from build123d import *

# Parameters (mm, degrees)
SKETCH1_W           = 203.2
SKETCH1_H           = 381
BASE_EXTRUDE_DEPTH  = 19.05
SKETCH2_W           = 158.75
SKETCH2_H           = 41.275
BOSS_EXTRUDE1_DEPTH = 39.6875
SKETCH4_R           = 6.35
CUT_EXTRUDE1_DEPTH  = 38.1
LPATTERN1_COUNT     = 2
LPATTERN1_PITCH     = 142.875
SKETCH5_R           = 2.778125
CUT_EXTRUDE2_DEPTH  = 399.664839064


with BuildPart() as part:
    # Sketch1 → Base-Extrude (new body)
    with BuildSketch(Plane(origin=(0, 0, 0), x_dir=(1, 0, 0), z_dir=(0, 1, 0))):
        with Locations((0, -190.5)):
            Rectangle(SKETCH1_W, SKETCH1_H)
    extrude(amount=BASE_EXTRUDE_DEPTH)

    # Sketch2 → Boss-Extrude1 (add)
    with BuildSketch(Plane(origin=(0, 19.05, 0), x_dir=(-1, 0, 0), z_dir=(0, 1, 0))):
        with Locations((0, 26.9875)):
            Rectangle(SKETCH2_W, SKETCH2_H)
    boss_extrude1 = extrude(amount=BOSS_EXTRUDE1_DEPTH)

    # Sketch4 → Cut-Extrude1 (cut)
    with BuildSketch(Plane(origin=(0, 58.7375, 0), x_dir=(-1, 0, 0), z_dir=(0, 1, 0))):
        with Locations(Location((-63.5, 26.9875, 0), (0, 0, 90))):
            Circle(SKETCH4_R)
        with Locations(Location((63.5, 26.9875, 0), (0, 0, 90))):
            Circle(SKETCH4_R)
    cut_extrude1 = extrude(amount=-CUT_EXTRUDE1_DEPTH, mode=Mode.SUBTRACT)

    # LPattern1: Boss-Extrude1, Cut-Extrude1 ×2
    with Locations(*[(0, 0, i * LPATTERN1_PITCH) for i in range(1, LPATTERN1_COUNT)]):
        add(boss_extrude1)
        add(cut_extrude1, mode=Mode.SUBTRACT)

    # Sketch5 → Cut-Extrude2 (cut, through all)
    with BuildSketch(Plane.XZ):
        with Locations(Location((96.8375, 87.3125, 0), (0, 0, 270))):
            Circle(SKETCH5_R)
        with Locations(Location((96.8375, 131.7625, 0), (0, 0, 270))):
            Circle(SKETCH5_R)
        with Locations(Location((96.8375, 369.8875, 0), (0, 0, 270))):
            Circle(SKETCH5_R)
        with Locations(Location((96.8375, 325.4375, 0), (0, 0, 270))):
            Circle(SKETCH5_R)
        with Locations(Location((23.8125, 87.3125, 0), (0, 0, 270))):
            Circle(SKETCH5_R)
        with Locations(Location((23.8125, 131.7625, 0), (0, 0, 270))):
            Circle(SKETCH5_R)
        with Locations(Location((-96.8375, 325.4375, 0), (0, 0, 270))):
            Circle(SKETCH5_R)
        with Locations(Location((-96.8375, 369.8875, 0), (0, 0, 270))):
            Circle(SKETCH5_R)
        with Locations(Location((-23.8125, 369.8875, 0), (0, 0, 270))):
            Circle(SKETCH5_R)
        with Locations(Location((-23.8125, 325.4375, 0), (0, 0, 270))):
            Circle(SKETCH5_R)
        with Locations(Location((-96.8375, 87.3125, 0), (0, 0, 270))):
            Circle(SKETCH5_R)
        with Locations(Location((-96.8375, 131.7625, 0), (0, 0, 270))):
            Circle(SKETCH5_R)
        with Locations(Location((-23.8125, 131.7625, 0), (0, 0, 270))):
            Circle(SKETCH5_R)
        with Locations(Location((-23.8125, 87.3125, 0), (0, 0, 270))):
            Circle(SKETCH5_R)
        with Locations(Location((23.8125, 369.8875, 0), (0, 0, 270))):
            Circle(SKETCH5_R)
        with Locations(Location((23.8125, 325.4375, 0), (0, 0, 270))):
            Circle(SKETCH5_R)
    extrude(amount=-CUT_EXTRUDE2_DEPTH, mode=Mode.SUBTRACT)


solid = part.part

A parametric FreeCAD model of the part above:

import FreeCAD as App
import Part
import Sketcher

V = App.Vector
Q = App.Units.Quantity


def add_polygon(sketch, points):
    """Adds a closed chain of lines whose ends are joined by coincident constraints."""
    first, n = sketch.GeometryCount, len(points)
    for a, b in zip(points, points[1:] + points[:1]):
        sketch.addGeometry(Part.LineSegment(App.Vector(*a, 0), App.Vector(*b, 0)), False)
    for i in range(n):
        sketch.addConstraint(Sketcher.Constraint("Coincident", first + i, 2, first + (i + 1) % n, 1))

doc = App.newDocument("Part")
body = doc.addObject("PartDesign::Body", "Body")

# Sketch on XZ plane
sketch1 = body.newObject("Sketcher::SketchObject", "Sketch")
sketch1.AttachmentSupport = (doc.getObject("XZ_Plane"), [""])
sketch1.MapMode = "FlatFace"
add_polygon(sketch1, [(-101.6, 0), (-101.6, 381), (101.6, 381), (101.6, 0)])  # lines 0-3
sketch1.addConstraint(Sketcher.Constraint("Vertical", 0))
sketch1.addConstraint(Sketcher.Constraint("Horizontal", 1))
sketch1.addConstraint(Sketcher.Constraint("Vertical", 2))
sketch1.addConstraint(Sketcher.Constraint("Horizontal", 3))
sketch1.addConstraint(Sketcher.Constraint("Symmetric", 2, 2, 3, 2, -1, 1))
sketch1.addConstraint(Sketcher.Constraint("DistanceX", 1, 1, 1, 2, Q("8 in")))
sketch1.addConstraint(Sketcher.Constraint("DistanceY", 0, 1, 0, 2, Q("15 in")))
pad1 = body.newObject("PartDesign::Pad", "Pad")
pad1.Profile = sketch1
pad1.Length = Q("0.75 in")
pad1.Reversed = True

# Sketch on XZ plane
sketch2 = body.newObject("Sketcher::SketchObject", "Sketch001")
sketch2.AttachmentSupport = (doc.getObject("XZ_Plane"), [""])
sketch2.MapMode = "FlatFace"
sketch2.AttachmentOffset = App.Placement(V(0, 0, -0.75 * 25.4), App.Rotation())
add_polygon(sketch2, [(79.375, 47.625), (79.375, 6.35), (-79.375, 6.35), (-79.375, 47.625)])  # lines 0-3
sketch2.addConstraint(Sketcher.Constraint("Vertical", 0))
sketch2.addConstraint(Sketcher.Constraint("Horizontal", 1))
sketch2.addConstraint(Sketcher.Constraint("Vertical", 2))
sketch2.addConstraint(Sketcher.Constraint("Horizontal", 3))
sketch2.addConstraint(Sketcher.Constraint("DistanceX", 1, 2, 1, 1, Q("6.25 in")))
sketch2.addConstraint(Sketcher.Constraint("DistanceY", 0, 2, 0, 1, Q("1.625 in")))
sketch2.addConstraint(Sketcher.Constraint("DistanceY", -1, 1, 0, 2, Q("0.25 in")))
sketch2.addConstraint(Sketcher.Constraint("DistanceX", -1, 1, 0, 2, Q("3.125 in")))
pad2 = body.newObject("PartDesign::Pad", "Pad001")
pad2.Profile = sketch2
pad2.Length = Q("1.5625 in")
pad2.Reversed = True

# Sketch on XZ plane
sketch3 = body.newObject("Sketcher::SketchObject", "Sketch002")
sketch3.AttachmentSupport = (doc.getObject("XZ_Plane"), [""])
sketch3.MapMode = "FlatFace"
sketch3.AttachmentOffset = App.Placement(V(0, 0, -2.3125 * 25.4), App.Rotation())
sketch3.addGeometry(Part.Circle(V(63.5, 26.9875, 0), V(0, 0, 1), 6.35), False)
sketch3.addGeometry(Part.Circle(V(-63.5, 26.9875, 0), V(0, 0, 1), 6.35), False)
sketch3.addConstraint(Sketcher.Constraint("Equal", 0, 1))
sketch3.addConstraint(Sketcher.Constraint("Symmetric", 0, 3, 1, 3, -2))
sketch3.addConstraint(Sketcher.Constraint("Diameter", 0, Q("0.5 in")))
sketch3.addConstraint(Sketcher.Constraint("DistanceX", 1, 3, 0, 3, Q("5 in")))
sketch3.addConstraint(Sketcher.Constraint("DistanceY", -1, 1, 0, 3, Q("1.0625 in")))
pocket1 = body.newObject("PartDesign::Pocket", "Pocket")
pocket1.Profile = sketch3
pocket1.Length = Q("1.5 in")
pocket1.Reversed = True
doc.recompute()

linearpattern = body.newObject("PartDesign::LinearPattern", "LinearPattern")
linearpattern.Originals = [pad2, pocket1]
linearpattern.Direction = (doc.getObject("Z_Axis"), [""])
linearpattern.Mode = "offset"
linearpattern.Offset = Q("5.625 in")
linearpattern.Occurrences = 2
body.Tip = linearpattern

# Sketch on XZ plane
sketch4 = body.newObject("Sketcher::SketchObject", "Sketch003")
sketch4.AttachmentSupport = (doc.getObject("XZ_Plane"), [""])
sketch4.MapMode = "FlatFace"
sketch4.addGeometry(Part.Circle(V(96.8375, 87.3125, 0), V(0, 0, 1), 2.778125), False)
sketch4.addGeometry(Part.Circle(V(96.8375, 131.7625, 0), V(0, 0, 1), 2.778125), False)
sketch4.addGeometry(Part.Circle(V(96.8375, 369.8875, 0), V(0, 0, 1), 2.778125), False)
sketch4.addGeometry(Part.Circle(V(96.8375, 325.4375, 0), V(0, 0, 1), 2.778125), False)
sketch4.addGeometry(Part.Circle(V(23.8125, 87.3125, 0), V(0, 0, 1), 2.778125), False)
sketch4.addGeometry(Part.Circle(V(23.8125, 131.7625, 0), V(0, 0, 1), 2.778125), False)
sketch4.addGeometry(Part.Circle(V(-96.8375, 325.4375, 0), V(0, 0, 1), 2.778125), False)
sketch4.addGeometry(Part.Circle(V(-96.8375, 369.8875, 0), V(0, 0, 1), 2.778125), False)
sketch4.addGeometry(Part.Circle(V(-23.8125, 369.8875, 0), V(0, 0, 1), 2.778125), False)
sketch4.addGeometry(Part.Circle(V(-23.8125, 325.4375, 0), V(0, 0, 1), 2.778125), False)
sketch4.addGeometry(Part.Circle(V(-96.8375, 87.3125, 0), V(0, 0, 1), 2.778125), False)
sketch4.addGeometry(Part.Circle(V(-96.8375, 131.7625, 0), V(0, 0, 1), 2.778125), False)
sketch4.addGeometry(Part.Circle(V(-23.8125, 131.7625, 0), V(0, 0, 1), 2.778125), False)
sketch4.addGeometry(Part.Circle(V(-23.8125, 87.3125, 0), V(0, 0, 1), 2.778125), False)
sketch4.addGeometry(Part.Circle(V(23.8125, 369.8875, 0), V(0, 0, 1), 2.778125), False)
sketch4.addGeometry(Part.Circle(V(23.8125, 325.4375, 0), V(0, 0, 1), 2.778125), False)
sketch4.addConstraint(Sketcher.Constraint("Equal", 0, 1))
sketch4.addConstraint(Sketcher.Constraint("Equal", 1, 2))
sketch4.addConstraint(Sketcher.Constraint("Equal", 2, 3))
sketch4.addConstraint(Sketcher.Constraint("Equal", 3, 4))
sketch4.addConstraint(Sketcher.Constraint("Equal", 4, 5))
sketch4.addConstraint(Sketcher.Constraint("Equal", 5, 6))
sketch4.addConstraint(Sketcher.Constraint("Equal", 6, 7))
sketch4.addConstraint(Sketcher.Constraint("Equal", 7, 8))
sketch4.addConstraint(Sketcher.Constraint("Equal", 8, 9))
sketch4.addConstraint(Sketcher.Constraint("Equal", 9, 10))
sketch4.addConstraint(Sketcher.Constraint("Equal", 10, 11))
sketch4.addConstraint(Sketcher.Constraint("Equal", 11, 12))
sketch4.addConstraint(Sketcher.Constraint("Equal", 12, 13))
sketch4.addConstraint(Sketcher.Constraint("Equal", 13, 14))
sketch4.addConstraint(Sketcher.Constraint("Equal", 14, 15))
sketch4.addConstraint(Sketcher.Constraint("Symmetric", 3, 3, 6, 3, -2))
sketch4.addConstraint(Sketcher.Constraint("Symmetric", 2, 3, 7, 3, -2))
sketch4.addConstraint(Sketcher.Constraint("Symmetric", 0, 3, 10, 3, -2))
sketch4.addConstraint(Sketcher.Constraint("Symmetric", 1, 3, 11, 3, -2))
sketch4.addConstraint(Sketcher.Constraint("Symmetric", 5, 3, 12, 3, -2))
sketch4.addConstraint(Sketcher.Constraint("Symmetric", 4, 3, 13, 3, -2))
sketch4.addConstraint(Sketcher.Constraint("Symmetric", 8, 3, 14, 3, -2))
sketch4.addConstraint(Sketcher.Constraint("Symmetric", 9, 3, 15, 3, -2))
sketch4.addConstraint(Sketcher.Constraint("Horizontal", 0, 3, 4, 3))
sketch4.addConstraint(Sketcher.Constraint("Horizontal", 1, 3, 5, 3))
sketch4.addConstraint(Sketcher.Constraint("Horizontal", 7, 3, 8, 3))
sketch4.addConstraint(Sketcher.Constraint("Horizontal", 6, 3, 9, 3))
sketch4.addConstraint(Sketcher.Constraint("Vertical", 0, 3, 1, 3))
sketch4.addConstraint(Sketcher.Constraint("Vertical", 1, 3, 2, 3))
sketch4.addConstraint(Sketcher.Constraint("Vertical", 2, 3, 3, 3))
sketch4.addConstraint(Sketcher.Constraint("Vertical", 4, 3, 5, 3))
sketch4.addConstraint(Sketcher.Constraint("Vertical", 8, 3, 9, 3))
sketch4.addConstraint(Sketcher.Constraint("Vertical", 9, 3, 12, 3))
sketch4.addConstraint(Sketcher.Constraint("Diameter", 0, Q("0.21875 in")))
sketch4.addConstraint(Sketcher.Constraint("DistanceY", 0, 3, 1, 3, Q("1.75 in")))
sketch4.addConstraint(Sketcher.Constraint("DistanceY", 3, 3, 2, 3, Q("1.75 in")))
sketch4.addConstraint(Sketcher.Constraint("DistanceX", 6, 3, 5, 3, Q("4.75 in")))
sketch4.addConstraint(Sketcher.Constraint("DistanceX", -1, 1, 0, 3, Q("3.8125 in")))
sketch4.addConstraint(Sketcher.Constraint("DistanceY", -1, 1, 0, 3, Q("3.4375 in")))
sketch4.addConstraint(Sketcher.Constraint("DistanceY", -1, 1, 2, 3, Q("14.5625 in")))
pocket2 = body.newObject("PartDesign::Pocket", "Pocket001")
pocket2.Profile = sketch4
pocket2.Type = "ThroughAll"

doc.recompute()
